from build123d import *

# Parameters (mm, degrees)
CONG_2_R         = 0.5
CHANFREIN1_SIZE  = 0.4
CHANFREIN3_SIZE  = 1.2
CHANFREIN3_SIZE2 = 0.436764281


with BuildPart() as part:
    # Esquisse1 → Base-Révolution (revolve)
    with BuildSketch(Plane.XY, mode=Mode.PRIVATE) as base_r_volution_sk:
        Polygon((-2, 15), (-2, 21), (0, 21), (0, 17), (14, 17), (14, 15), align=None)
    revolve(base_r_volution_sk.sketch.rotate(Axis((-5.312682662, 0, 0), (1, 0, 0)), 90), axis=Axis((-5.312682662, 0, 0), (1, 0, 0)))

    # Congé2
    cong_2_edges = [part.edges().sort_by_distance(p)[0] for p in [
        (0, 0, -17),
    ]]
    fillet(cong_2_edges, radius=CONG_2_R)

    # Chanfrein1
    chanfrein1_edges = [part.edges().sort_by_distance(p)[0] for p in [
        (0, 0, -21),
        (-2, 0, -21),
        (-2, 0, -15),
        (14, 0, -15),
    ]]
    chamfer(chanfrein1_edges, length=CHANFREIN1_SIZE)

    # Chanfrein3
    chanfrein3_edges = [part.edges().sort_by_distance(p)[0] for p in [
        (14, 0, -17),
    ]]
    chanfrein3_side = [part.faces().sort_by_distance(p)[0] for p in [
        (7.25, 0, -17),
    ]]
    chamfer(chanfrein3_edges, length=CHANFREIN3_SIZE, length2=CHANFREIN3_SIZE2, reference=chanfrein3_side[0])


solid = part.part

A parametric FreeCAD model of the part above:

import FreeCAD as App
import Part
import Sketcher
Q = App.Units.Quantity


def edges_at(feature, points):
    """Names of the edges that pass closest to the given points."""
    edges = feature.Shape.Edges
    near = lambda p: min(range(len(edges)), key=lambda i: edges[i].distToShape(Part.Vertex(*p))[0])
    return sorted({f"Edge{near(p) + 1}" for p in points})

doc = App.newDocument("Part")
body = doc.addObject("PartDesign::Body", "Body")

# Sketch on XY plane
sketch1 = body.newObject("Sketcher::SketchObject", "Sketch")
sketch1.AttachmentSupport = (doc.getObject("XY_Plane"), [""])
sketch1.MapMode = "FlatFace"
sketch1.addGeometry(Part.LineSegment(App.Vector(-2, 21, 0), App.Vector(-2, 15, 0)), False)
sketch1.addGeometry(Part.LineSegment(App.Vector(-2, 15, 0), App.Vector(14, 15, 0)), False)
sketch1.addGeometry(Part.LineSegment(App.Vector(14, 15, 0), App.Vector(14, 17, 0)), False)
sketch1.addGeometry(Part.LineSegment(App.Vector(14, 17, 0), App.Vector(0, 17, 0)), False)
sketch1.addGeometry(Part.LineSegment(App.Vector(0, 17, 0), App.Vector(0, 21, 0)), False)
sketch1.addGeometry(Part.LineSegment(App.Vector(0, 21, 0), App.Vector(-2, 21, 0)), False)
sketch1.addConstraint(Sketcher.Constraint("Coincident", 0, 2, 1, 1))
sketch1.addConstraint(Sketcher.Constraint("Coincident", 1, 2, 2, 1))
sketch1.addConstraint(Sketcher.Constraint("Coincident", 2, 2, 3, 1))
sketch1.addConstraint(Sketcher.Constraint("Coincident", 3, 2, 4, 1))
sketch1.addConstraint(Sketcher.Constraint("Coincident", 4, 2, 5, 1))
sketch1.addConstraint(Sketcher.Constraint("Coincident", 5, 2, 0, 1))
sketch1.addConstraint(Sketcher.Constraint("Vertical", 0))
sketch1.addConstraint(Sketcher.Constraint("Horizontal", 1))
sketch1.addConstraint(Sketcher.Constraint("Vertical", 2))
sketch1.addConstraint(Sketcher.Constraint("Horizontal", 3))
sketch1.addConstraint(Sketcher.Constraint("Vertical", 4))
sketch1.addConstraint(Sketcher.Constraint("Horizontal", 5))
sketch1.addConstraint(Sketcher.Constraint("PointOnObject", 3, 2, -2))
sketch1.addConstraint(Sketcher.Constraint("Equal", 5, 2))
sketch1.addConstraint(Sketcher.Constraint("DistanceX", 1, 1, 1, 2, Q("16 mm")))
sketch1.addConstraint(Sketcher.Constraint("DistanceX", 3, 2, 3, 1, Q("14 mm")))
sketch1.addConstraint(Sketcher.Constraint("DistanceY", 0, 2, 0, 1, Q("6 mm")))
sketch1.addConstraint(Sketcher.Constraint("DistanceY", -1, 1, 0, 2, Q("15 mm")))
revolution = body.newObject("PartDesign::Revolution", "Revolution")
revolution.Profile = sketch1
revolution.ReferenceAxis = (sketch1, ["H_Axis"])
revolution.Angle = 360
doc.recompute()

fillet = body.newObject("PartDesign::Fillet", "Fillet")
fillet.Base = (revolution, edges_at(revolution, [(0, 0, -17)]))
fillet.Radius = 0.5
doc.recompute()

chamfer = body.newObject("PartDesign::Chamfer", "Chamfer")
chamfer.Base = (fillet, edges_at(fillet, [
    (0, 0, -21),
    (-2, 0, -21),
    (-2, 0, -15),
    (14, 0, -15),
]))
chamfer.Size = 0.4
doc.recompute()

chamfer2 = body.newObject("PartDesign::Chamfer", "Chamfer001")
chamfer2.Base = (chamfer, edges_at(chamfer, [(14, 0, -17)]))
chamfer2.ChamferType = "Two distances"
chamfer2.Size = 1.2
chamfer2.Size2 = 0.436764
chamfer2.FlipDirection = True

doc.recompute()
